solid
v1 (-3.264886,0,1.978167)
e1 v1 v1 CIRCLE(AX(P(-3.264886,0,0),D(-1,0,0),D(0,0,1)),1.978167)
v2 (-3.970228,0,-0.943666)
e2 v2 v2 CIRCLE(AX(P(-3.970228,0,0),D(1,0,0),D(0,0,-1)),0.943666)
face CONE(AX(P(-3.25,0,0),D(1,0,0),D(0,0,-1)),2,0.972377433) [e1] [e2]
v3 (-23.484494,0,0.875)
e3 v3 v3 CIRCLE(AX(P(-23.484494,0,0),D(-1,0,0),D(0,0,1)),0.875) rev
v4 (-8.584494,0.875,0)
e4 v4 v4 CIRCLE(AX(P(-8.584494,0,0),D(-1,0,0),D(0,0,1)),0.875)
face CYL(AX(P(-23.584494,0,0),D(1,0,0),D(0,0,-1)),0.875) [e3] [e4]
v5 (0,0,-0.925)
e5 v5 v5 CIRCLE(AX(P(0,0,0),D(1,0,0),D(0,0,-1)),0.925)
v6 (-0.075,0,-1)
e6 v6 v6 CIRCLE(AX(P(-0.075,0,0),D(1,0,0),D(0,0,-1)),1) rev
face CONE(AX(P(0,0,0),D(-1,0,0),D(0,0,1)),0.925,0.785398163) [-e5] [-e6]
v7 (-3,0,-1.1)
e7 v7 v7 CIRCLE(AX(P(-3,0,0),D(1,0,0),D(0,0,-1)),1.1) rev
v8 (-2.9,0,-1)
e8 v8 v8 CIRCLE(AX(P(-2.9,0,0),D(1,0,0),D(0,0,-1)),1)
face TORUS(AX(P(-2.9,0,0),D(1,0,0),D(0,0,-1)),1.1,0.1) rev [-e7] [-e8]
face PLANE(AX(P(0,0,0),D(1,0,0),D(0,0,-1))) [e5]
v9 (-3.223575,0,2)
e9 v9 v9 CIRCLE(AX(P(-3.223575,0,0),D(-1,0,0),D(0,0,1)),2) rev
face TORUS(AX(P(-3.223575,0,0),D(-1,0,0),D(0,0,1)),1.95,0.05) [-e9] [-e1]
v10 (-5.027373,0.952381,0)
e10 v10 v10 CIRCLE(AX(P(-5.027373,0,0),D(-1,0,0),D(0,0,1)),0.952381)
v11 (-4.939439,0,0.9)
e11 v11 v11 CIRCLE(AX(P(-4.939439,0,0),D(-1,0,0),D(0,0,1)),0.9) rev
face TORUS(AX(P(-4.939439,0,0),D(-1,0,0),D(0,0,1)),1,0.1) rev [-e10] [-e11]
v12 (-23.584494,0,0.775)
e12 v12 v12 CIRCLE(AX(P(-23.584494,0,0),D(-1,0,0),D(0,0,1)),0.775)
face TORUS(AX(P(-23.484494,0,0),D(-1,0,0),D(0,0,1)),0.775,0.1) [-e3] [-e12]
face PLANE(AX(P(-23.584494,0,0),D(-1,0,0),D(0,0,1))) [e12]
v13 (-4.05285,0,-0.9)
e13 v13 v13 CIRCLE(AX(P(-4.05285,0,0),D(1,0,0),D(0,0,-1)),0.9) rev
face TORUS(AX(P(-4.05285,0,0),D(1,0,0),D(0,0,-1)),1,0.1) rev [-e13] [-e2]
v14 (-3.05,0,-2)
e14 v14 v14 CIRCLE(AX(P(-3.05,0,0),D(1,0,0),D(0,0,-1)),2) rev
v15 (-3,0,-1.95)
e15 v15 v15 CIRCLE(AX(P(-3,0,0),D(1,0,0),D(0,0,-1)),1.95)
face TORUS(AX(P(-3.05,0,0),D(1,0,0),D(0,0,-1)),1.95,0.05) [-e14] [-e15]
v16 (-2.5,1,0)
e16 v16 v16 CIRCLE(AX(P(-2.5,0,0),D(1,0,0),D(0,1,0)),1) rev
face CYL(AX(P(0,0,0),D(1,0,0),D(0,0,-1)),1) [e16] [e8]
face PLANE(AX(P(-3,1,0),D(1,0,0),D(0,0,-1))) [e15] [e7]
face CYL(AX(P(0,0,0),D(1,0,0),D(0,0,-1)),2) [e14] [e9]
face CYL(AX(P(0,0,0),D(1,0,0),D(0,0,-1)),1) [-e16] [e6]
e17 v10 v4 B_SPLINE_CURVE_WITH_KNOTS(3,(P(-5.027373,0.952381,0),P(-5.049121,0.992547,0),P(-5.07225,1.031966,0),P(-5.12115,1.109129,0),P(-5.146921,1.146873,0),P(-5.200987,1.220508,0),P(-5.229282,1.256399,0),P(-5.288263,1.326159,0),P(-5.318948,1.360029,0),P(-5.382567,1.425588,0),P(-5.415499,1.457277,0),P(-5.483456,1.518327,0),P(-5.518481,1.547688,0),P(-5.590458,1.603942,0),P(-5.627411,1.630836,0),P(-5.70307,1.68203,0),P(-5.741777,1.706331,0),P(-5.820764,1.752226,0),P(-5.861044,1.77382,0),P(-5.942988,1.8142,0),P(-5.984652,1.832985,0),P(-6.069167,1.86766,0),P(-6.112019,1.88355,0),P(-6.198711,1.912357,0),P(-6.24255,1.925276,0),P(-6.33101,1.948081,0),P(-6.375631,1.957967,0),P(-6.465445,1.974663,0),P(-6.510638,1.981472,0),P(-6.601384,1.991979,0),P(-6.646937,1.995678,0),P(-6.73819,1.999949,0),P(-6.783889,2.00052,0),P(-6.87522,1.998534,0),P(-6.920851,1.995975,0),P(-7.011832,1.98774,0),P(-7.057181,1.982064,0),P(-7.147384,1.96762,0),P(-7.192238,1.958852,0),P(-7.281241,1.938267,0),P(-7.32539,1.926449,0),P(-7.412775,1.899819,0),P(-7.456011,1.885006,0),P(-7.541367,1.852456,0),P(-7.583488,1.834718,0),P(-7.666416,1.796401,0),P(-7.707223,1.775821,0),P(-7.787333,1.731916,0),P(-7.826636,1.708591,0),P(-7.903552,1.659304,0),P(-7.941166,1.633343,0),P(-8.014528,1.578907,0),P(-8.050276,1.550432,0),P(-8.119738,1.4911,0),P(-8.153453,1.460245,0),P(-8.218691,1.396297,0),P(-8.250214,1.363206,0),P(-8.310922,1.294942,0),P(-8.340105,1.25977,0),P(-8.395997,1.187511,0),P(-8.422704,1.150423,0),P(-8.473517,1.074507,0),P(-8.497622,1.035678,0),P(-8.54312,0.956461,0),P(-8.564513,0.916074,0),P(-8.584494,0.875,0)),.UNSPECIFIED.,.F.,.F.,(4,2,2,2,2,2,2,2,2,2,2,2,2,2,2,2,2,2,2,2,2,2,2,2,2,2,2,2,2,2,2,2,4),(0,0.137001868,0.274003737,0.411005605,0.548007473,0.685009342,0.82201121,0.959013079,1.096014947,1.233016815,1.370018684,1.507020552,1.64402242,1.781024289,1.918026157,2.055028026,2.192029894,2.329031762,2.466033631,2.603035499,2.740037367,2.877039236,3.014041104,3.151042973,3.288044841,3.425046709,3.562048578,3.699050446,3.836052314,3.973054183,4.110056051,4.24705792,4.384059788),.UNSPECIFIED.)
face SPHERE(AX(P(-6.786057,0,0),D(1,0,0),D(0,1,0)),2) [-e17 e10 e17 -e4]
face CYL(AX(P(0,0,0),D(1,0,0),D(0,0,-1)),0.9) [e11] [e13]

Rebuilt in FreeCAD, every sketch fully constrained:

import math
import FreeCAD as App
import Part
import Sketcher

V = App.Vector
Q = App.Units.Quantity


def edges_at(feature, points):
    """Names of the edges that pass closest to the given points."""
    edges = feature.Shape.Edges
    near = lambda p: min(range(len(edges)), key=lambda i: edges[i].distToShape(Part.Vertex(*p))[0])
    return sorted({f"Edge{near(p) + 1}" for p in points})

doc = App.newDocument("Part")
body = doc.addObject("PartDesign::Body", "Body")

# Sketch on XY plane
sketch1 = doc.addObject("Sketcher::SketchObject", "Sketch")
body.addObject(sketch1)
sketch1.AttachmentSupport = (doc.XY_Plane, [""])
sketch1.MapMode = "FlatFace"
sketch1.addGeometry([
    Part.LineSegment(V(0, 0, 0), V(0, 1, 0)),  # 0
    Part.LineSegment(V(0, 1, 0), V(-3, 1, 0)),  # 1
    Part.LineSegment(V(-3, 1, 0), V(-3, 2, 0)),  # 2
    Part.LineSegment(V(-3, 2, 0), V(-3.25, 2, 0)),  # 3
    Part.LineSegment(V(-3.25, 2, 0), V(-4, 0.9, 0)),  # 4
    Part.LineSegment(V(-4, 0.9, 0), V(-5, 0.9, 0)),  # 5
    Part.ArcOfCircle(Part.Circle(V(-6.79, 0, 0), V(0, 0, 1), 2), math.radians(27), math.radians(154)),  # 6
    Part.LineSegment(V(-8.58, 0.88, 0), V(-8.58, 0, 0)),  # 7
    Part.LineSegment(V(-8.58, 0, 0), V(0, 0, 0)),  # 8
], False)
sketch1.addConstraint([
    Sketcher.Constraint("Coincident", 0, 2, 1, 1),
    Sketcher.Constraint("Coincident", 1, 2, 2, 1),
    Sketcher.Constraint("Coincident", 2, 2, 3, 1),
    Sketcher.Constraint("Coincident", 3, 2, 4, 1),
    Sketcher.Constraint("Coincident", 4, 2, 5, 1),
    Sketcher.Constraint("Coincident", 5, 2, 6, 1),
    Sketcher.Constraint("Coincident", 6, 2, 7, 1),
    Sketcher.Constraint("Coincident", 7, 2, 8, 1),
    Sketcher.Constraint("Coincident", 8, 2, 0, 1),
    Sketcher.Constraint("Vertical", 0),
    Sketcher.Constraint("Horizontal", 1),
    Sketcher.Constraint("Vertical", 2),
    Sketcher.Constraint("Horizontal", 3),
    Sketcher.Constraint("Horizontal", 5),
    Sketcher.Constraint("Vertical", 7),
    Sketcher.Constraint("Horizontal", 8),
    Sketcher.Constraint("Coincident", 8, 2, -1, 1),
    Sketcher.Constraint("PointOnObject", 6, 3, -1),
    Sketcher.Constraint("Equal", 5, 0),
    Sketcher.Constraint("Equal", 0, 2),
    Sketcher.Constraint("Radius", 6, Q("2 mm")),
    Sketcher.Constraint("DistanceX", 1, 2, 1, 1, Q("3 mm")),
    Sketcher.Constraint("DistanceX", 5, 2, 5, 1, Q("1 mm")),
    Sketcher.Constraint("DistanceX", 4, 2, -1, 1, Q("4 mm")),
    Sketcher.Constraint("DistanceX", 3, 2, 3, 1, Q("0.25 mm")),
    Sketcher.Constraint("DistanceY", -1, 1, 4, 2, Q("0.9 mm")),
    Sketcher.Constraint("DistanceY", 7, 2, 7, 1, Q("0.875 mm")),
])
revolution = doc.addObject("PartDesign::Revolution", "Revolution")
body.addObject(revolution)
revolution.Profile = sketch1
revolution.ReferenceAxis = (sketch1, ["H_Axis"])
revolution.Angle = 360
doc.recompute()

chamfer = doc.addObject("PartDesign::Chamfer", "Chamfer")
body.addObject(chamfer)
chamfer.Base = (revolution, edges_at(revolution, [(0, 0, 1)]))
chamfer.Size = 0.075
doc.recompute()

fillet = doc.addObject("PartDesign::Fillet", "Fillet")
body.addObject(fillet)
fillet.Base = (chamfer, edges_at(chamfer, [(-4, 0, 0.9), (-5, 0, 0.9), (-3, 0, 1)]))
fillet.Radius = 0.1
doc.recompute()

fillet2 = doc.addObject("PartDesign::Fillet", "Fillet001")
body.addObject(fillet2)
fillet2.Base = (fillet, edges_at(fillet, [(-3, 0, 2), (-3.25, 0, 2)]))
fillet2.Radius = 0.05

# Sketch on YZ plane
sketch2 = doc.addObject("Sketcher::SketchObject", "Sketch001")
body.addObject(sketch2)
sketch2.AttachmentSupport = (doc.YZ_Plane, [""])
sketch2.MapMode = "FlatFace"
sketch2.AttachmentOffset = App.Placement(V(0, 0, -8.584494), App.Rotation())
sketch2.addGeometry(Part.Circle(V(0, 0, 0), V(0, 0, 1), 0.9), False)
sketch2.addConstraint([
    Sketcher.Constraint("Coincident", 0, 3, -1, 1),
    Sketcher.Constraint("Diameter", 0, Q("1.75 mm")),
])
pad1 = doc.addObject("PartDesign::Pad", "Pad")
body.addObject(pad1)
pad1.Profile = sketch2
pad1.Length = 15
pad1.Reversed = True
doc.recompute()

fillet3 = doc.addObject("PartDesign::Fillet", "Fillet002")
body.addObject(fillet3)
fillet3.Base = (pad1, edges_at(pad1, [(-23.584, -0.875, 0)]))
fillet3.Radius = 0.1

doc.recompute()
